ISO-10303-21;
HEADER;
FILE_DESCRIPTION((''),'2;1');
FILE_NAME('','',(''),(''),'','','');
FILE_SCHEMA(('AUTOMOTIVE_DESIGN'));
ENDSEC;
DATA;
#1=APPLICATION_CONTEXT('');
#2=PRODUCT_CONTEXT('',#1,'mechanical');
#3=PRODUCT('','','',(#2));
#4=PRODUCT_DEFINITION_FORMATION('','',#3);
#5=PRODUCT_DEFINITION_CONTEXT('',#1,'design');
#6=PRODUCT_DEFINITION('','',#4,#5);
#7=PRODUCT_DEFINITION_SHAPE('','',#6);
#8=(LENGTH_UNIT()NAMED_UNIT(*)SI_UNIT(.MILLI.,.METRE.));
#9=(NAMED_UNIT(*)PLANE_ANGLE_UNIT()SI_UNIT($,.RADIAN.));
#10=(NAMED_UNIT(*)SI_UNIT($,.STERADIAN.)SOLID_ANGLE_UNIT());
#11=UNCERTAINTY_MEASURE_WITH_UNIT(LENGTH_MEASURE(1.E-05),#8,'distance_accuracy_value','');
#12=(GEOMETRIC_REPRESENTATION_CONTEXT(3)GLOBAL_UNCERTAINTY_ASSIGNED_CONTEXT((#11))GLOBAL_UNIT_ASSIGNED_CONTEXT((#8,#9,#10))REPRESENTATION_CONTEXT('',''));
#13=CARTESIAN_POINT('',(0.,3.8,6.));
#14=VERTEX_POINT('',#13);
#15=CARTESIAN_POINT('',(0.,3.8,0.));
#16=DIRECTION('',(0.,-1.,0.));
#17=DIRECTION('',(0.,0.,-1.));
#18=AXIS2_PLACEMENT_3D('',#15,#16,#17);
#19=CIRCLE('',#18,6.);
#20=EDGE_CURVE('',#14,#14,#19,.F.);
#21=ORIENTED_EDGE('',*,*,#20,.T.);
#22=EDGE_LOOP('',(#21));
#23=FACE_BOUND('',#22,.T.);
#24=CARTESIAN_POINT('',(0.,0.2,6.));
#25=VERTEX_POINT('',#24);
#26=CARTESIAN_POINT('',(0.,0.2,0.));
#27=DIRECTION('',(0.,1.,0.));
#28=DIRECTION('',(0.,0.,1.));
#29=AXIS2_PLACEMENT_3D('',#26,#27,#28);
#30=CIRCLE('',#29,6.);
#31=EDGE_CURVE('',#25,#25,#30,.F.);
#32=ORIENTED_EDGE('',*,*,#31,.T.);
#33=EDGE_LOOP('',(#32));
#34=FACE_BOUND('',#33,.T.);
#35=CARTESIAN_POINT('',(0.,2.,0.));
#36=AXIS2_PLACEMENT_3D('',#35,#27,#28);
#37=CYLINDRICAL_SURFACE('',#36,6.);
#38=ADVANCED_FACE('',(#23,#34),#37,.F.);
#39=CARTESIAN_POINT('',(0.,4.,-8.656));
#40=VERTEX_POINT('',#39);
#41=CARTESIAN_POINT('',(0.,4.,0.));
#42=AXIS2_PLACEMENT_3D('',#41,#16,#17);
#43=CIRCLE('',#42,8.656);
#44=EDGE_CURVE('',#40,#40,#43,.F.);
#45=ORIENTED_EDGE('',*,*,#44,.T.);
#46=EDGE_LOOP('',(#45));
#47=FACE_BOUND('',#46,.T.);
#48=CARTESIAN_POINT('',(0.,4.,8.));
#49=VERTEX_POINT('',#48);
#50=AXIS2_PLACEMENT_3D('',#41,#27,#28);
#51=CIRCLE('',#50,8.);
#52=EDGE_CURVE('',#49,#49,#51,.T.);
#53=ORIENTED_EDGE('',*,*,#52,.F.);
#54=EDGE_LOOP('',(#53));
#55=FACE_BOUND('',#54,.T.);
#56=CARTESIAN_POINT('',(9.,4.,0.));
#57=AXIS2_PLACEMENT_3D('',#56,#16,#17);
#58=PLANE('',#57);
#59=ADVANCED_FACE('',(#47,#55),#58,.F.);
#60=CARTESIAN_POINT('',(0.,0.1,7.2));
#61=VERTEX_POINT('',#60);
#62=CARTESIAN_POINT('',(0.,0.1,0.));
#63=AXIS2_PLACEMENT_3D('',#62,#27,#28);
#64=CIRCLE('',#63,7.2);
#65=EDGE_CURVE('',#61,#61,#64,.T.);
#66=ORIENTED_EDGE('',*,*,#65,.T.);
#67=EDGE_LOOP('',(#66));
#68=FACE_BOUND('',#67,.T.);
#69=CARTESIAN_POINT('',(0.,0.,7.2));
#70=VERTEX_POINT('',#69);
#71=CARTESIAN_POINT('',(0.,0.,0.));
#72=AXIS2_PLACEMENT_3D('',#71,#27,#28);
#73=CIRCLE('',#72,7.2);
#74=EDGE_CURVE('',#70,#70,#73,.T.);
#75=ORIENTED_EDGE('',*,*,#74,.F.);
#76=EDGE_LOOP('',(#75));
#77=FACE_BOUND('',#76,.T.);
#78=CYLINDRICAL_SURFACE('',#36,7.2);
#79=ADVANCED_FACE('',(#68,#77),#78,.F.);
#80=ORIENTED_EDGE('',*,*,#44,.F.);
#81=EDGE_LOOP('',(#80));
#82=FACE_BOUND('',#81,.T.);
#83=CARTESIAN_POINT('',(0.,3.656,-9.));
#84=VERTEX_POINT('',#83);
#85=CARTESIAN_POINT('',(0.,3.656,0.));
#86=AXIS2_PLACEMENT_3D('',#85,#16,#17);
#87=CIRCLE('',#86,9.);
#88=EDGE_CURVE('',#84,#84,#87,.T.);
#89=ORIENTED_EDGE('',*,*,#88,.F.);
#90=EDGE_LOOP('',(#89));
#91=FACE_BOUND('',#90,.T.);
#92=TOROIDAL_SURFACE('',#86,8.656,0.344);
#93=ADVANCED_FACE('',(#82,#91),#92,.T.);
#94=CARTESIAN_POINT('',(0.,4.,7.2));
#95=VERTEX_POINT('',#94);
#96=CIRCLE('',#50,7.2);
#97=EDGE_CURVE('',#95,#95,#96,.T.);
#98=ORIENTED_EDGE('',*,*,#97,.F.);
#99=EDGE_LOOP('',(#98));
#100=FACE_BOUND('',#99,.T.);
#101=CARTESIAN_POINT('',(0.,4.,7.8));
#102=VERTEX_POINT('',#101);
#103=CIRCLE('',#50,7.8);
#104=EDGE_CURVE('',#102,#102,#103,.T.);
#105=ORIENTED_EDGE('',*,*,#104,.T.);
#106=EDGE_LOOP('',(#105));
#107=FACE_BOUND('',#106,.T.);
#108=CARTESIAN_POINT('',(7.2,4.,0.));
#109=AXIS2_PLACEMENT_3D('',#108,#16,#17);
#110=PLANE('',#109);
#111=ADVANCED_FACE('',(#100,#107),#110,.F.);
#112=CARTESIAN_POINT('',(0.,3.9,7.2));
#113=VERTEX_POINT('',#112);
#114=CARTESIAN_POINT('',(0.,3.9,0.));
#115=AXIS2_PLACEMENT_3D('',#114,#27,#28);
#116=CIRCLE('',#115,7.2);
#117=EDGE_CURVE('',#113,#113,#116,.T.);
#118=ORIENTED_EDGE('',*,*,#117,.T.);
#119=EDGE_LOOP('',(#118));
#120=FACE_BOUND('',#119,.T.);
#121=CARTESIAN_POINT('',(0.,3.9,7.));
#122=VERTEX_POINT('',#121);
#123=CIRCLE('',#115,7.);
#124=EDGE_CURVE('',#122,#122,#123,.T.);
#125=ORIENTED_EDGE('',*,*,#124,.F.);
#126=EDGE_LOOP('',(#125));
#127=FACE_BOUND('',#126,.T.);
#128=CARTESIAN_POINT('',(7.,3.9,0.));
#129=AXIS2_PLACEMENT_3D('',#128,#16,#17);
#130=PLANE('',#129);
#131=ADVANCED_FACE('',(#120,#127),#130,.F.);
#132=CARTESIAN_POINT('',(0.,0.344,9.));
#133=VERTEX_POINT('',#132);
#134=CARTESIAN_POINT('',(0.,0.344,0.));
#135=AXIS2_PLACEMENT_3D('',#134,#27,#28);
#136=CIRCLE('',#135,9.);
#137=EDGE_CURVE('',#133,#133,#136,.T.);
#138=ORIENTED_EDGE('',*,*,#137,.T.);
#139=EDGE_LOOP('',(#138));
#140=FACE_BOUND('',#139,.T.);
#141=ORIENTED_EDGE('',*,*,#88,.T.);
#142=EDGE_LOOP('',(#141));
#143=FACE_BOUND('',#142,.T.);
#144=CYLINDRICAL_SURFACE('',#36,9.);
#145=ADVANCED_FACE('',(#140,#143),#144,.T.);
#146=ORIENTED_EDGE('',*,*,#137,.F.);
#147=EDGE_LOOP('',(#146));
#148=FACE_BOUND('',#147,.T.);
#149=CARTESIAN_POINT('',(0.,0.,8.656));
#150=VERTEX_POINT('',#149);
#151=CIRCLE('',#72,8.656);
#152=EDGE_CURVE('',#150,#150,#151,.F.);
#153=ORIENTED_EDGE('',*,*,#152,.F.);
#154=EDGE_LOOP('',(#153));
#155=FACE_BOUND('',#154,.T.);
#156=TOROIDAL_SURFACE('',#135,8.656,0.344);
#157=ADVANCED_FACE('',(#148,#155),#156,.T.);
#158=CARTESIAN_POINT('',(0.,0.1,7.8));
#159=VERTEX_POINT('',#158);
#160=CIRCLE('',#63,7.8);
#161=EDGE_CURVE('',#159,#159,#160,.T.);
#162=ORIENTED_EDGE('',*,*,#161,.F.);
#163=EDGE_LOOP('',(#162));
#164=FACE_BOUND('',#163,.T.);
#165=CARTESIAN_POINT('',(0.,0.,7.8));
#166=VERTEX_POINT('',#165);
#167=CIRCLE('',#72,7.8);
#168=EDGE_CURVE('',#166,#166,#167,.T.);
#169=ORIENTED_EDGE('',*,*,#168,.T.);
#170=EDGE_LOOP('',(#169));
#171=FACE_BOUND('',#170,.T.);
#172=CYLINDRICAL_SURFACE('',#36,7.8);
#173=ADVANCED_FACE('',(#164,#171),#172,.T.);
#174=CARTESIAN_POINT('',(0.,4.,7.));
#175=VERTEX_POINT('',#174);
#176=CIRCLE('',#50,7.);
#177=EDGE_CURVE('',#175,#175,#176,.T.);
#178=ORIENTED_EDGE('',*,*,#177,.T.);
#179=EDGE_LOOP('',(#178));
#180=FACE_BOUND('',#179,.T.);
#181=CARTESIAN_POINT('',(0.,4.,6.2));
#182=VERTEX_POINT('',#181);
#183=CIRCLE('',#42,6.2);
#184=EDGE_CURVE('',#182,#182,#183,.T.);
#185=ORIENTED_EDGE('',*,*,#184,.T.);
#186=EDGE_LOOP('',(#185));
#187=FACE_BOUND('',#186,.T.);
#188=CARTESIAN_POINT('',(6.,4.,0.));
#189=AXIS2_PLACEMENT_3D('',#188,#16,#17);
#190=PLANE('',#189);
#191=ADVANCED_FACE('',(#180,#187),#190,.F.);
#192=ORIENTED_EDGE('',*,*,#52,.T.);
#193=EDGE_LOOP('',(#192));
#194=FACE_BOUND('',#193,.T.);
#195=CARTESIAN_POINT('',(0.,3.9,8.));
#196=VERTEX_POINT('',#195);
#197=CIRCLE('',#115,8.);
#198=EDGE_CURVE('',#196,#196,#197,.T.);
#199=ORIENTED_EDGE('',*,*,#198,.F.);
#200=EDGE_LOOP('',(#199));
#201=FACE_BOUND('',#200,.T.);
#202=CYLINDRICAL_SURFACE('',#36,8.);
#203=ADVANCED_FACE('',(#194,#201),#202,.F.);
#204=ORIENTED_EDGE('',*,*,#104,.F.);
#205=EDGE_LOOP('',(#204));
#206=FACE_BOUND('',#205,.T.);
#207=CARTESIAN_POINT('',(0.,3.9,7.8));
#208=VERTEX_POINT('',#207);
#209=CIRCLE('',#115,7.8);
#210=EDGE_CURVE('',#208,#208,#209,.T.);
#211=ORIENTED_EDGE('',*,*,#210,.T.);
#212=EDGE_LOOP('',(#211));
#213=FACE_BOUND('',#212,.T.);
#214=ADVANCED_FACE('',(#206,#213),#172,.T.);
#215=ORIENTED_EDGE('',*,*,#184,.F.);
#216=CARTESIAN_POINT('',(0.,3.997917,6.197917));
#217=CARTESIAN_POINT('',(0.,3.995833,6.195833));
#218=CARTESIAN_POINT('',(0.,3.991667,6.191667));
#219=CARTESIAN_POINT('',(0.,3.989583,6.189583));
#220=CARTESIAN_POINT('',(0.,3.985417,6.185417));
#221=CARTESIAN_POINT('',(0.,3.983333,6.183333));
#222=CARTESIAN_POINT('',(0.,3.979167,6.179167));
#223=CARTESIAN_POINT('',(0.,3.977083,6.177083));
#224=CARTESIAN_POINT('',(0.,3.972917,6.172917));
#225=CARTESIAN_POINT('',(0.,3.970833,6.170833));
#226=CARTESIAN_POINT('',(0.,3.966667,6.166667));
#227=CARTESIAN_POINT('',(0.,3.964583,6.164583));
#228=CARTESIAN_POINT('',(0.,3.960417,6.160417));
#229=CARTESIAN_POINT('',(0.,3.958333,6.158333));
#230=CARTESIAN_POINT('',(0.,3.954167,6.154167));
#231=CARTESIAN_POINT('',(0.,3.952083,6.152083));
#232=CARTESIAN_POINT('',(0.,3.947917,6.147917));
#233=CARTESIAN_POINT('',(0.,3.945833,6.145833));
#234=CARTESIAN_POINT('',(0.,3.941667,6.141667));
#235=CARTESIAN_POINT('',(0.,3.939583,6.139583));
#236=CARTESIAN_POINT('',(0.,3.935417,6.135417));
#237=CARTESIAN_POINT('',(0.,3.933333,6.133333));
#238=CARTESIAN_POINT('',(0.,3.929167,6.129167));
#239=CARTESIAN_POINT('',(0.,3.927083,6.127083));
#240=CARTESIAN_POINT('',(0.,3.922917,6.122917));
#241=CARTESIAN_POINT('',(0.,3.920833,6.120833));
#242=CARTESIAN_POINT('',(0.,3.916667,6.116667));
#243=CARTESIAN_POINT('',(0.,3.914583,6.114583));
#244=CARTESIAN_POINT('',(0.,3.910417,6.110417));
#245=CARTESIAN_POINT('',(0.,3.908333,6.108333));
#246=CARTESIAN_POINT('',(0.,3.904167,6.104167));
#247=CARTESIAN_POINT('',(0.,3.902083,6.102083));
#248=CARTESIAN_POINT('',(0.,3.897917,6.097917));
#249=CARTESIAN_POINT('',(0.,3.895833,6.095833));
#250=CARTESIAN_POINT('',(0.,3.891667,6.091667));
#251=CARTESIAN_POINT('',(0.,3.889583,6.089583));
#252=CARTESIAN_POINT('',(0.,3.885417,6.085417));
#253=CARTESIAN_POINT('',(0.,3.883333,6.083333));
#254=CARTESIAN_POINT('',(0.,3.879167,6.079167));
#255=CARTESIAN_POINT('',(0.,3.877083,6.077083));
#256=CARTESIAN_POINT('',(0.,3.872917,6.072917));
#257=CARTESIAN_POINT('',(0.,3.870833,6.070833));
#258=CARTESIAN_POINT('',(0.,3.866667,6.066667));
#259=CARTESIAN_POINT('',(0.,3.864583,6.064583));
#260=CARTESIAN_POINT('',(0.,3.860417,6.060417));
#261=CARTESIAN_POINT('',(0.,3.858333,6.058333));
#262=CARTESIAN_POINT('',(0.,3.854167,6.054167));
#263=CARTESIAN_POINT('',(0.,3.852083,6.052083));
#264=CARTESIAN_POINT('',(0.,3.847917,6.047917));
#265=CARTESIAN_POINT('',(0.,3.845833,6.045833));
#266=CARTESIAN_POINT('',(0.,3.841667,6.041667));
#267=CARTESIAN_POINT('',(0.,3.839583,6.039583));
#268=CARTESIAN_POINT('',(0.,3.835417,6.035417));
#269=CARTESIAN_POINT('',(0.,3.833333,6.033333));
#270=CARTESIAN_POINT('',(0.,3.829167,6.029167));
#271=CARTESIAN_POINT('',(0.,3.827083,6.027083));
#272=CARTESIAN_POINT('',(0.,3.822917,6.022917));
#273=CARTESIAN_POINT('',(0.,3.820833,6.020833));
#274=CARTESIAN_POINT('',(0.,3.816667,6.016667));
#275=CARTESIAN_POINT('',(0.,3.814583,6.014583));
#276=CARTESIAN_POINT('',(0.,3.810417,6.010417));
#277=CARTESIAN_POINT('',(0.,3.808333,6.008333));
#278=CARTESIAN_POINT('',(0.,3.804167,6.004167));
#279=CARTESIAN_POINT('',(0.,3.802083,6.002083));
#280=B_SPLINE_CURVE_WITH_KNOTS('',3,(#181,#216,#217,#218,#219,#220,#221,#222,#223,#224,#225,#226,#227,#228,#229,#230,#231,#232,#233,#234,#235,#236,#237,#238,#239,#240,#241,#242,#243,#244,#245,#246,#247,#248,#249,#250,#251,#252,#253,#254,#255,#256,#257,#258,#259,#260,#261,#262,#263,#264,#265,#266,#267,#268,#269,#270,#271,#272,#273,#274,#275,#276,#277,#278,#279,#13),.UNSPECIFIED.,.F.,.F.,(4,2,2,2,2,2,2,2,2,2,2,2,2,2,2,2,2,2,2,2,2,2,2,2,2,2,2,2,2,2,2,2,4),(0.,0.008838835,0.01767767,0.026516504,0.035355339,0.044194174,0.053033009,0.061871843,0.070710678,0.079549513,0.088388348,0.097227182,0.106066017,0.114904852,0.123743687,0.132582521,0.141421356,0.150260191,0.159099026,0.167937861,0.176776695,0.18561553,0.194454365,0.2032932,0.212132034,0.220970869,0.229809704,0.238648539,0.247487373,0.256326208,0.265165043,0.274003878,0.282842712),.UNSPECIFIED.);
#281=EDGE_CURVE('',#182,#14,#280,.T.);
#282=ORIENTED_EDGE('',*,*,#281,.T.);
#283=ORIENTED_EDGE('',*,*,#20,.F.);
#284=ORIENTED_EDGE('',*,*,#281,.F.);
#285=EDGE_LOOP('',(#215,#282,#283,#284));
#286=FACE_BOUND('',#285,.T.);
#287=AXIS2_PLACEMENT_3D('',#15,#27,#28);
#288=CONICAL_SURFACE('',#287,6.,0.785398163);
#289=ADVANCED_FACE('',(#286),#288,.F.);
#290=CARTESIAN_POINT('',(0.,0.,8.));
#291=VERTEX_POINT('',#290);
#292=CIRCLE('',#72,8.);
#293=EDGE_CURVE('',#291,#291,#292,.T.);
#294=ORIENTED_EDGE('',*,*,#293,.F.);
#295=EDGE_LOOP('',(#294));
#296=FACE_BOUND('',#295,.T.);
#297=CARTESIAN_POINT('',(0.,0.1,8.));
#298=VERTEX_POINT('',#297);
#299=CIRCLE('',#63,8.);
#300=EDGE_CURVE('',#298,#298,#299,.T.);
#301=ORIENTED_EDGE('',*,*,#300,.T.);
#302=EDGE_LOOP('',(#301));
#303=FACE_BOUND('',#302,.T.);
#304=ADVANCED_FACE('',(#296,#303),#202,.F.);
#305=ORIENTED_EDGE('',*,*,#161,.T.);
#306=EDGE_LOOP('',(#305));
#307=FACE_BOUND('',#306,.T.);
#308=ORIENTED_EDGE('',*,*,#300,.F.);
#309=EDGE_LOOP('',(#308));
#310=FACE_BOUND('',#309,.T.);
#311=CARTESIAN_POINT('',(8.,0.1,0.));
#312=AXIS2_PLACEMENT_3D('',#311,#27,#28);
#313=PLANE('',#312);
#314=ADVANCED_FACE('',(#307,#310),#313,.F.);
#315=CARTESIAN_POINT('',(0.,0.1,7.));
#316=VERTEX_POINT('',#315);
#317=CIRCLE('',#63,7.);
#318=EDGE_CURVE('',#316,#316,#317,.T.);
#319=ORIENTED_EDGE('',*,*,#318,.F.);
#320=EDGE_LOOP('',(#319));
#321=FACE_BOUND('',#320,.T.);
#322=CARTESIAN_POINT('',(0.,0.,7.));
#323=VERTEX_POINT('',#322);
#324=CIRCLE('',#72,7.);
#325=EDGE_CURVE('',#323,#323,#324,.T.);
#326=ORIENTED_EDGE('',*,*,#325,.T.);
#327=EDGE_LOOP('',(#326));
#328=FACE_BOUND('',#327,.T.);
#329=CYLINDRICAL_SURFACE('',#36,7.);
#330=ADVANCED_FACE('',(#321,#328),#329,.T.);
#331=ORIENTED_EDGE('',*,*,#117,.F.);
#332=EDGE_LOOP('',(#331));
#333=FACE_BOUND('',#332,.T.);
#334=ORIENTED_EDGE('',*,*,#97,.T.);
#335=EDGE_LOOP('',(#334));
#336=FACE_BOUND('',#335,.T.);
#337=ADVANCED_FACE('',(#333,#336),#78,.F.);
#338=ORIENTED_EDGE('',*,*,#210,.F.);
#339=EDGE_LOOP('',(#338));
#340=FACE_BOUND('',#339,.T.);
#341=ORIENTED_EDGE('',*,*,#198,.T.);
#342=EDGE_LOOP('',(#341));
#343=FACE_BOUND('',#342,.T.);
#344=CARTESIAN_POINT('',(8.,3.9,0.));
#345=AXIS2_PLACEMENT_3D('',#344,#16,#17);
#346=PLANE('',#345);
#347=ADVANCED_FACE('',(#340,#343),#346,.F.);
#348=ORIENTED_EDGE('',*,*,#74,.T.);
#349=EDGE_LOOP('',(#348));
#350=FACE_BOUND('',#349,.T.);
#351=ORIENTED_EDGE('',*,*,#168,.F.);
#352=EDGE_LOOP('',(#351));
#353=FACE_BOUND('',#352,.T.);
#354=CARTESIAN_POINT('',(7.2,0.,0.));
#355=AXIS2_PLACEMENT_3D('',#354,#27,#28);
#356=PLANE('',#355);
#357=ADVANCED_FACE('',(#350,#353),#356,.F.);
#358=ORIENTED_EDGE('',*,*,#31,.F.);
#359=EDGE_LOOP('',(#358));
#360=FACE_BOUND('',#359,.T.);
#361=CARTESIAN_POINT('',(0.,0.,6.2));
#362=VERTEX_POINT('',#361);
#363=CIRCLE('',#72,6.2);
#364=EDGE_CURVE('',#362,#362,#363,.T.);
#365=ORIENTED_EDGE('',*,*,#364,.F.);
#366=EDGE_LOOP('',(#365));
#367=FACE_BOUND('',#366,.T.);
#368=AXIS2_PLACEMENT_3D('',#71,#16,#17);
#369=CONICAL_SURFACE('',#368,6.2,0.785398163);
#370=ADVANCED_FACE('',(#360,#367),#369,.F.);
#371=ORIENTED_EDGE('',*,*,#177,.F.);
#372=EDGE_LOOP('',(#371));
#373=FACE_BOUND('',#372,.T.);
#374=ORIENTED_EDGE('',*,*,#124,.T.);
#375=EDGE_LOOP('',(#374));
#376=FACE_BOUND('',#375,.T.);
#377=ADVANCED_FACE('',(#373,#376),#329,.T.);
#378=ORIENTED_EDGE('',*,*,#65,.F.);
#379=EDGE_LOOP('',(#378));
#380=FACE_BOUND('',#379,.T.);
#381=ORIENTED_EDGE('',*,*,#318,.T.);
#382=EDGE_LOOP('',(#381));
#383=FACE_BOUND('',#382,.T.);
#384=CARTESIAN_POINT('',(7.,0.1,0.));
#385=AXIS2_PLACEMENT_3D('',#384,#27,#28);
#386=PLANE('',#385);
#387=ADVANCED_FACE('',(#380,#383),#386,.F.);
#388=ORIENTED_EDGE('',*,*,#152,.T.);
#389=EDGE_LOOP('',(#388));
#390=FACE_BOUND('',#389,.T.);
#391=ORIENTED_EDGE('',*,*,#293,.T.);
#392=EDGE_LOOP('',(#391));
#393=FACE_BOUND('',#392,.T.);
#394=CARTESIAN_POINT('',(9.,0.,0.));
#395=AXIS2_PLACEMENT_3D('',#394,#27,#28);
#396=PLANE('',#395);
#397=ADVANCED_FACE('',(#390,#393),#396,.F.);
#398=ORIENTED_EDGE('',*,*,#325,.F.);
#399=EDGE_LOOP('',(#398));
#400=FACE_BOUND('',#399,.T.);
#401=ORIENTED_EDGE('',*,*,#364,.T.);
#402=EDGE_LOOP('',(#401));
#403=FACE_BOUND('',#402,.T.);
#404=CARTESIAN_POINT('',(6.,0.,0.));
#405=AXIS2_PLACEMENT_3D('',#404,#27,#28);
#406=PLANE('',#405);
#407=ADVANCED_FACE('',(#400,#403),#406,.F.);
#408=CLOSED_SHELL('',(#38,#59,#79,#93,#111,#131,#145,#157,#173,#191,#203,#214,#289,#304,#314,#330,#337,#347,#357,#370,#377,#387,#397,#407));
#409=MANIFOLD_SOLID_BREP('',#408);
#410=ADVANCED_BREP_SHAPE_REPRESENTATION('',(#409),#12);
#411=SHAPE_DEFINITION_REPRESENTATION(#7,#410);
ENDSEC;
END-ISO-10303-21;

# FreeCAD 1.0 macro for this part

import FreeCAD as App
import Part
import Sketcher
from FreeCAD import Vector
Q = App.Units.Quantity


def edges_at(feature, points):
    """Names of the edges that pass closest to the given points."""
    edges = feature.Shape.Edges
    near = lambda p: min(range(len(edges)), key=lambda i: edges[i].distToShape(Part.Vertex(*p))[0])
    return sorted({f"Edge{near(p) + 1}" for p in points})


def add_polygon(sketch, points):
    """Adds a closed chain of lines whose ends are joined by coincident constraints."""
    first, n = sketch.GeometryCount, len(points)
    for a, b in zip(points, points[1:] + points[:1]):
        sketch.addGeometry(Part.LineSegment(App.Vector(*a, 0), App.Vector(*b, 0)), False)
    for i in range(n):
        sketch.addConstraint(Sketcher.Constraint("Coincident", first + i, 2, first + (i + 1) % n, 1))

doc = App.newDocument("Part")
params = doc.addObject("Spreadsheet::Sheet", "Params")
for row, (alias, value) in enumerate([
    ("sketch1_width", "1 mm"),
    ("sketch1_height", "4 mm"),
    ("sketch1_width2", "0.2 mm"),
    ("sketch1_width3", "0.6 mm"),
    ("sketch1_height2", "0.1 mm"),
    ("revolution_angle", "360 deg"),
    ("fillet_radius", "0.344 mm"),
    ("chamfer_size", "0.2 mm"),
], start=1):
    params.set(f"A{row}", alias)
    params.set(f"B{row}", "=" + value)
    params.setAlias(f"B{row}", alias)

body = doc.addObject("PartDesign::Body", "Body")

# Sketch on XY plane
sketch1 = body.newObject("Sketcher::SketchObject", "Sketch")
sketch1.AttachmentSupport = (doc.getObject("XY_Plane"), [""])
sketch1.MapMode = "FlatFace"
add_polygon(sketch1, [(9, 0), (9, 4), (8, 4), (8, 3.9), (7.8, 3.9), (7.8, 4), (7.2, 4), (7.2, 3.9), (7, 3.9), (7, 4), (6, 4), (6, 0), (7, 0), (7, 0.1), (7.2, 0.1), (7.2, 0), (7.8, 0), (7.8, 0.1), (8, 0.1), (8, 0)])  # lines 0-19
sketch1.addConstraint(Sketcher.Constraint("Vertical", 0))
sketch1.addConstraint(Sketcher.Constraint("Horizontal", 1))
sketch1.addConstraint(Sketcher.Constraint("Vertical", 2))
sketch1.addConstraint(Sketcher.Constraint("Horizontal", 3))
sketch1.addConstraint(Sketcher.Constraint("Vertical", 4))
sketch1.addConstraint(Sketcher.Constraint("Horizontal", 5))
sketch1.addConstraint(Sketcher.Constraint("Vertical", 6))
sketch1.addConstraint(Sketcher.Constraint("Horizontal", 7))
sketch1.addConstraint(Sketcher.Constraint("Vertical", 8))
sketch1.addConstraint(Sketcher.Constraint("Horizontal", 9))
sketch1.addConstraint(Sketcher.Constraint("Vertical", 10))
sketch1.addConstraint(Sketcher.Constraint("Horizontal", 11))
sketch1.addConstraint(Sketcher.Constraint("Vertical", 12))
sketch1.addConstraint(Sketcher.Constraint("Horizontal", 13))
sketch1.addConstraint(Sketcher.Constraint("Vertical", 14))
sketch1.addConstraint(Sketcher.Constraint("Horizontal", 15))
sketch1.addConstraint(Sketcher.Constraint("Vertical", 16))
sketch1.addConstraint(Sketcher.Constraint("Horizontal", 17))
sketch1.addConstraint(Sketcher.Constraint("Vertical", 18))
sketch1.addConstraint(Sketcher.Constraint("Horizontal", 19))
sketch1.addConstraint(Sketcher.Constraint("PointOnObject", 10, 2, -1))
sketch1.addConstraint(Sketcher.Constraint("PointOnObject", 14, 2, -1))
sketch1.addConstraint(Sketcher.Constraint("PointOnObject", 18, 2, -1))
sketch1.addConstraint(Sketcher.Constraint("Horizontal", 1, 2, 4, 2))
sketch1.addConstraint(Sketcher.Constraint("Horizontal", 3, 2, 6, 2))
sketch1.addConstraint(Sketcher.Constraint("Horizontal", 5, 2, 8, 2))
sketch1.addConstraint(Sketcher.Constraint("Horizontal", 13, 2, 16, 2))
sketch1.addConstraint(Sketcher.Constraint("Vertical", 8, 2, 11, 2))
sketch1.addConstraint(Sketcher.Constraint("Vertical", 6, 2, 13, 2))
sketch1.addConstraint(Sketcher.Constraint("Vertical", 4, 2, 15, 2))
sketch1.addConstraint(Sketcher.Constraint("Vertical", 2, 2, 17, 2))
sketch1.addConstraint(Sketcher.Constraint("Equal", 3, 7))
sketch1.addConstraint(Sketcher.Constraint("Equal", 1, 9))
sketch1.addConstraint(Sketcher.Constraint("Equal", 8, 12))
sketch1.addConstraint(Sketcher.Constraint("DistanceX", 1, 2, 1, 1, Q("1 mm")))
sketch1.addConstraint(Sketcher.Constraint("DistanceY", 0, 1, 0, 2, Q("4 mm")))
sketch1.addConstraint(Sketcher.Constraint("DistanceX", 3, 2, 3, 1, Q("0.2 mm")))
sketch1.addConstraint(Sketcher.Constraint("DistanceX", 5, 2, 5, 1, Q("0.6 mm")))
sketch1.addConstraint(Sketcher.Constraint("DistanceY", 2, 2, 2, 1, Q("0.1 mm")))
sketch1.addConstraint(Sketcher.Constraint("DistanceX", -1, 1, 0, 2, Q("9 mm")))
sketch1.setExpression("Constraints[54]", "Params.sketch1_width")
sketch1.setExpression("Constraints[55]", "Params.sketch1_height")
sketch1.setExpression("Constraints[56]", "Params.sketch1_width2")
sketch1.setExpression("Constraints[57]", "Params.sketch1_width3")
sketch1.setExpression("Constraints[58]", "Params.sketch1_height2")
revolution = body.newObject("PartDesign::Revolution", "Revolution")
revolution.Profile = sketch1
revolution.ReferenceAxis = (sketch1, ["V_Axis"])
revolution.setExpression("Angle", "Params.revolution_angle")
doc.recompute()

fillet = body.newObject("PartDesign::Fillet", "Fillet")
fillet.Base = (revolution, edges_at(revolution, [(0, 0, -9), (0, 4, -9)]))
fillet.setExpression("Radius", "Params.fillet_radius")
doc.recompute()

chamfer = body.newObject("PartDesign::Chamfer", "Chamfer")
chamfer.Base = (fillet, edges_at(fillet, [(0, 4, -6), (0, 0, -6)]))
chamfer.setExpression("Size", "Params.chamfer_size")

doc.recompute()
